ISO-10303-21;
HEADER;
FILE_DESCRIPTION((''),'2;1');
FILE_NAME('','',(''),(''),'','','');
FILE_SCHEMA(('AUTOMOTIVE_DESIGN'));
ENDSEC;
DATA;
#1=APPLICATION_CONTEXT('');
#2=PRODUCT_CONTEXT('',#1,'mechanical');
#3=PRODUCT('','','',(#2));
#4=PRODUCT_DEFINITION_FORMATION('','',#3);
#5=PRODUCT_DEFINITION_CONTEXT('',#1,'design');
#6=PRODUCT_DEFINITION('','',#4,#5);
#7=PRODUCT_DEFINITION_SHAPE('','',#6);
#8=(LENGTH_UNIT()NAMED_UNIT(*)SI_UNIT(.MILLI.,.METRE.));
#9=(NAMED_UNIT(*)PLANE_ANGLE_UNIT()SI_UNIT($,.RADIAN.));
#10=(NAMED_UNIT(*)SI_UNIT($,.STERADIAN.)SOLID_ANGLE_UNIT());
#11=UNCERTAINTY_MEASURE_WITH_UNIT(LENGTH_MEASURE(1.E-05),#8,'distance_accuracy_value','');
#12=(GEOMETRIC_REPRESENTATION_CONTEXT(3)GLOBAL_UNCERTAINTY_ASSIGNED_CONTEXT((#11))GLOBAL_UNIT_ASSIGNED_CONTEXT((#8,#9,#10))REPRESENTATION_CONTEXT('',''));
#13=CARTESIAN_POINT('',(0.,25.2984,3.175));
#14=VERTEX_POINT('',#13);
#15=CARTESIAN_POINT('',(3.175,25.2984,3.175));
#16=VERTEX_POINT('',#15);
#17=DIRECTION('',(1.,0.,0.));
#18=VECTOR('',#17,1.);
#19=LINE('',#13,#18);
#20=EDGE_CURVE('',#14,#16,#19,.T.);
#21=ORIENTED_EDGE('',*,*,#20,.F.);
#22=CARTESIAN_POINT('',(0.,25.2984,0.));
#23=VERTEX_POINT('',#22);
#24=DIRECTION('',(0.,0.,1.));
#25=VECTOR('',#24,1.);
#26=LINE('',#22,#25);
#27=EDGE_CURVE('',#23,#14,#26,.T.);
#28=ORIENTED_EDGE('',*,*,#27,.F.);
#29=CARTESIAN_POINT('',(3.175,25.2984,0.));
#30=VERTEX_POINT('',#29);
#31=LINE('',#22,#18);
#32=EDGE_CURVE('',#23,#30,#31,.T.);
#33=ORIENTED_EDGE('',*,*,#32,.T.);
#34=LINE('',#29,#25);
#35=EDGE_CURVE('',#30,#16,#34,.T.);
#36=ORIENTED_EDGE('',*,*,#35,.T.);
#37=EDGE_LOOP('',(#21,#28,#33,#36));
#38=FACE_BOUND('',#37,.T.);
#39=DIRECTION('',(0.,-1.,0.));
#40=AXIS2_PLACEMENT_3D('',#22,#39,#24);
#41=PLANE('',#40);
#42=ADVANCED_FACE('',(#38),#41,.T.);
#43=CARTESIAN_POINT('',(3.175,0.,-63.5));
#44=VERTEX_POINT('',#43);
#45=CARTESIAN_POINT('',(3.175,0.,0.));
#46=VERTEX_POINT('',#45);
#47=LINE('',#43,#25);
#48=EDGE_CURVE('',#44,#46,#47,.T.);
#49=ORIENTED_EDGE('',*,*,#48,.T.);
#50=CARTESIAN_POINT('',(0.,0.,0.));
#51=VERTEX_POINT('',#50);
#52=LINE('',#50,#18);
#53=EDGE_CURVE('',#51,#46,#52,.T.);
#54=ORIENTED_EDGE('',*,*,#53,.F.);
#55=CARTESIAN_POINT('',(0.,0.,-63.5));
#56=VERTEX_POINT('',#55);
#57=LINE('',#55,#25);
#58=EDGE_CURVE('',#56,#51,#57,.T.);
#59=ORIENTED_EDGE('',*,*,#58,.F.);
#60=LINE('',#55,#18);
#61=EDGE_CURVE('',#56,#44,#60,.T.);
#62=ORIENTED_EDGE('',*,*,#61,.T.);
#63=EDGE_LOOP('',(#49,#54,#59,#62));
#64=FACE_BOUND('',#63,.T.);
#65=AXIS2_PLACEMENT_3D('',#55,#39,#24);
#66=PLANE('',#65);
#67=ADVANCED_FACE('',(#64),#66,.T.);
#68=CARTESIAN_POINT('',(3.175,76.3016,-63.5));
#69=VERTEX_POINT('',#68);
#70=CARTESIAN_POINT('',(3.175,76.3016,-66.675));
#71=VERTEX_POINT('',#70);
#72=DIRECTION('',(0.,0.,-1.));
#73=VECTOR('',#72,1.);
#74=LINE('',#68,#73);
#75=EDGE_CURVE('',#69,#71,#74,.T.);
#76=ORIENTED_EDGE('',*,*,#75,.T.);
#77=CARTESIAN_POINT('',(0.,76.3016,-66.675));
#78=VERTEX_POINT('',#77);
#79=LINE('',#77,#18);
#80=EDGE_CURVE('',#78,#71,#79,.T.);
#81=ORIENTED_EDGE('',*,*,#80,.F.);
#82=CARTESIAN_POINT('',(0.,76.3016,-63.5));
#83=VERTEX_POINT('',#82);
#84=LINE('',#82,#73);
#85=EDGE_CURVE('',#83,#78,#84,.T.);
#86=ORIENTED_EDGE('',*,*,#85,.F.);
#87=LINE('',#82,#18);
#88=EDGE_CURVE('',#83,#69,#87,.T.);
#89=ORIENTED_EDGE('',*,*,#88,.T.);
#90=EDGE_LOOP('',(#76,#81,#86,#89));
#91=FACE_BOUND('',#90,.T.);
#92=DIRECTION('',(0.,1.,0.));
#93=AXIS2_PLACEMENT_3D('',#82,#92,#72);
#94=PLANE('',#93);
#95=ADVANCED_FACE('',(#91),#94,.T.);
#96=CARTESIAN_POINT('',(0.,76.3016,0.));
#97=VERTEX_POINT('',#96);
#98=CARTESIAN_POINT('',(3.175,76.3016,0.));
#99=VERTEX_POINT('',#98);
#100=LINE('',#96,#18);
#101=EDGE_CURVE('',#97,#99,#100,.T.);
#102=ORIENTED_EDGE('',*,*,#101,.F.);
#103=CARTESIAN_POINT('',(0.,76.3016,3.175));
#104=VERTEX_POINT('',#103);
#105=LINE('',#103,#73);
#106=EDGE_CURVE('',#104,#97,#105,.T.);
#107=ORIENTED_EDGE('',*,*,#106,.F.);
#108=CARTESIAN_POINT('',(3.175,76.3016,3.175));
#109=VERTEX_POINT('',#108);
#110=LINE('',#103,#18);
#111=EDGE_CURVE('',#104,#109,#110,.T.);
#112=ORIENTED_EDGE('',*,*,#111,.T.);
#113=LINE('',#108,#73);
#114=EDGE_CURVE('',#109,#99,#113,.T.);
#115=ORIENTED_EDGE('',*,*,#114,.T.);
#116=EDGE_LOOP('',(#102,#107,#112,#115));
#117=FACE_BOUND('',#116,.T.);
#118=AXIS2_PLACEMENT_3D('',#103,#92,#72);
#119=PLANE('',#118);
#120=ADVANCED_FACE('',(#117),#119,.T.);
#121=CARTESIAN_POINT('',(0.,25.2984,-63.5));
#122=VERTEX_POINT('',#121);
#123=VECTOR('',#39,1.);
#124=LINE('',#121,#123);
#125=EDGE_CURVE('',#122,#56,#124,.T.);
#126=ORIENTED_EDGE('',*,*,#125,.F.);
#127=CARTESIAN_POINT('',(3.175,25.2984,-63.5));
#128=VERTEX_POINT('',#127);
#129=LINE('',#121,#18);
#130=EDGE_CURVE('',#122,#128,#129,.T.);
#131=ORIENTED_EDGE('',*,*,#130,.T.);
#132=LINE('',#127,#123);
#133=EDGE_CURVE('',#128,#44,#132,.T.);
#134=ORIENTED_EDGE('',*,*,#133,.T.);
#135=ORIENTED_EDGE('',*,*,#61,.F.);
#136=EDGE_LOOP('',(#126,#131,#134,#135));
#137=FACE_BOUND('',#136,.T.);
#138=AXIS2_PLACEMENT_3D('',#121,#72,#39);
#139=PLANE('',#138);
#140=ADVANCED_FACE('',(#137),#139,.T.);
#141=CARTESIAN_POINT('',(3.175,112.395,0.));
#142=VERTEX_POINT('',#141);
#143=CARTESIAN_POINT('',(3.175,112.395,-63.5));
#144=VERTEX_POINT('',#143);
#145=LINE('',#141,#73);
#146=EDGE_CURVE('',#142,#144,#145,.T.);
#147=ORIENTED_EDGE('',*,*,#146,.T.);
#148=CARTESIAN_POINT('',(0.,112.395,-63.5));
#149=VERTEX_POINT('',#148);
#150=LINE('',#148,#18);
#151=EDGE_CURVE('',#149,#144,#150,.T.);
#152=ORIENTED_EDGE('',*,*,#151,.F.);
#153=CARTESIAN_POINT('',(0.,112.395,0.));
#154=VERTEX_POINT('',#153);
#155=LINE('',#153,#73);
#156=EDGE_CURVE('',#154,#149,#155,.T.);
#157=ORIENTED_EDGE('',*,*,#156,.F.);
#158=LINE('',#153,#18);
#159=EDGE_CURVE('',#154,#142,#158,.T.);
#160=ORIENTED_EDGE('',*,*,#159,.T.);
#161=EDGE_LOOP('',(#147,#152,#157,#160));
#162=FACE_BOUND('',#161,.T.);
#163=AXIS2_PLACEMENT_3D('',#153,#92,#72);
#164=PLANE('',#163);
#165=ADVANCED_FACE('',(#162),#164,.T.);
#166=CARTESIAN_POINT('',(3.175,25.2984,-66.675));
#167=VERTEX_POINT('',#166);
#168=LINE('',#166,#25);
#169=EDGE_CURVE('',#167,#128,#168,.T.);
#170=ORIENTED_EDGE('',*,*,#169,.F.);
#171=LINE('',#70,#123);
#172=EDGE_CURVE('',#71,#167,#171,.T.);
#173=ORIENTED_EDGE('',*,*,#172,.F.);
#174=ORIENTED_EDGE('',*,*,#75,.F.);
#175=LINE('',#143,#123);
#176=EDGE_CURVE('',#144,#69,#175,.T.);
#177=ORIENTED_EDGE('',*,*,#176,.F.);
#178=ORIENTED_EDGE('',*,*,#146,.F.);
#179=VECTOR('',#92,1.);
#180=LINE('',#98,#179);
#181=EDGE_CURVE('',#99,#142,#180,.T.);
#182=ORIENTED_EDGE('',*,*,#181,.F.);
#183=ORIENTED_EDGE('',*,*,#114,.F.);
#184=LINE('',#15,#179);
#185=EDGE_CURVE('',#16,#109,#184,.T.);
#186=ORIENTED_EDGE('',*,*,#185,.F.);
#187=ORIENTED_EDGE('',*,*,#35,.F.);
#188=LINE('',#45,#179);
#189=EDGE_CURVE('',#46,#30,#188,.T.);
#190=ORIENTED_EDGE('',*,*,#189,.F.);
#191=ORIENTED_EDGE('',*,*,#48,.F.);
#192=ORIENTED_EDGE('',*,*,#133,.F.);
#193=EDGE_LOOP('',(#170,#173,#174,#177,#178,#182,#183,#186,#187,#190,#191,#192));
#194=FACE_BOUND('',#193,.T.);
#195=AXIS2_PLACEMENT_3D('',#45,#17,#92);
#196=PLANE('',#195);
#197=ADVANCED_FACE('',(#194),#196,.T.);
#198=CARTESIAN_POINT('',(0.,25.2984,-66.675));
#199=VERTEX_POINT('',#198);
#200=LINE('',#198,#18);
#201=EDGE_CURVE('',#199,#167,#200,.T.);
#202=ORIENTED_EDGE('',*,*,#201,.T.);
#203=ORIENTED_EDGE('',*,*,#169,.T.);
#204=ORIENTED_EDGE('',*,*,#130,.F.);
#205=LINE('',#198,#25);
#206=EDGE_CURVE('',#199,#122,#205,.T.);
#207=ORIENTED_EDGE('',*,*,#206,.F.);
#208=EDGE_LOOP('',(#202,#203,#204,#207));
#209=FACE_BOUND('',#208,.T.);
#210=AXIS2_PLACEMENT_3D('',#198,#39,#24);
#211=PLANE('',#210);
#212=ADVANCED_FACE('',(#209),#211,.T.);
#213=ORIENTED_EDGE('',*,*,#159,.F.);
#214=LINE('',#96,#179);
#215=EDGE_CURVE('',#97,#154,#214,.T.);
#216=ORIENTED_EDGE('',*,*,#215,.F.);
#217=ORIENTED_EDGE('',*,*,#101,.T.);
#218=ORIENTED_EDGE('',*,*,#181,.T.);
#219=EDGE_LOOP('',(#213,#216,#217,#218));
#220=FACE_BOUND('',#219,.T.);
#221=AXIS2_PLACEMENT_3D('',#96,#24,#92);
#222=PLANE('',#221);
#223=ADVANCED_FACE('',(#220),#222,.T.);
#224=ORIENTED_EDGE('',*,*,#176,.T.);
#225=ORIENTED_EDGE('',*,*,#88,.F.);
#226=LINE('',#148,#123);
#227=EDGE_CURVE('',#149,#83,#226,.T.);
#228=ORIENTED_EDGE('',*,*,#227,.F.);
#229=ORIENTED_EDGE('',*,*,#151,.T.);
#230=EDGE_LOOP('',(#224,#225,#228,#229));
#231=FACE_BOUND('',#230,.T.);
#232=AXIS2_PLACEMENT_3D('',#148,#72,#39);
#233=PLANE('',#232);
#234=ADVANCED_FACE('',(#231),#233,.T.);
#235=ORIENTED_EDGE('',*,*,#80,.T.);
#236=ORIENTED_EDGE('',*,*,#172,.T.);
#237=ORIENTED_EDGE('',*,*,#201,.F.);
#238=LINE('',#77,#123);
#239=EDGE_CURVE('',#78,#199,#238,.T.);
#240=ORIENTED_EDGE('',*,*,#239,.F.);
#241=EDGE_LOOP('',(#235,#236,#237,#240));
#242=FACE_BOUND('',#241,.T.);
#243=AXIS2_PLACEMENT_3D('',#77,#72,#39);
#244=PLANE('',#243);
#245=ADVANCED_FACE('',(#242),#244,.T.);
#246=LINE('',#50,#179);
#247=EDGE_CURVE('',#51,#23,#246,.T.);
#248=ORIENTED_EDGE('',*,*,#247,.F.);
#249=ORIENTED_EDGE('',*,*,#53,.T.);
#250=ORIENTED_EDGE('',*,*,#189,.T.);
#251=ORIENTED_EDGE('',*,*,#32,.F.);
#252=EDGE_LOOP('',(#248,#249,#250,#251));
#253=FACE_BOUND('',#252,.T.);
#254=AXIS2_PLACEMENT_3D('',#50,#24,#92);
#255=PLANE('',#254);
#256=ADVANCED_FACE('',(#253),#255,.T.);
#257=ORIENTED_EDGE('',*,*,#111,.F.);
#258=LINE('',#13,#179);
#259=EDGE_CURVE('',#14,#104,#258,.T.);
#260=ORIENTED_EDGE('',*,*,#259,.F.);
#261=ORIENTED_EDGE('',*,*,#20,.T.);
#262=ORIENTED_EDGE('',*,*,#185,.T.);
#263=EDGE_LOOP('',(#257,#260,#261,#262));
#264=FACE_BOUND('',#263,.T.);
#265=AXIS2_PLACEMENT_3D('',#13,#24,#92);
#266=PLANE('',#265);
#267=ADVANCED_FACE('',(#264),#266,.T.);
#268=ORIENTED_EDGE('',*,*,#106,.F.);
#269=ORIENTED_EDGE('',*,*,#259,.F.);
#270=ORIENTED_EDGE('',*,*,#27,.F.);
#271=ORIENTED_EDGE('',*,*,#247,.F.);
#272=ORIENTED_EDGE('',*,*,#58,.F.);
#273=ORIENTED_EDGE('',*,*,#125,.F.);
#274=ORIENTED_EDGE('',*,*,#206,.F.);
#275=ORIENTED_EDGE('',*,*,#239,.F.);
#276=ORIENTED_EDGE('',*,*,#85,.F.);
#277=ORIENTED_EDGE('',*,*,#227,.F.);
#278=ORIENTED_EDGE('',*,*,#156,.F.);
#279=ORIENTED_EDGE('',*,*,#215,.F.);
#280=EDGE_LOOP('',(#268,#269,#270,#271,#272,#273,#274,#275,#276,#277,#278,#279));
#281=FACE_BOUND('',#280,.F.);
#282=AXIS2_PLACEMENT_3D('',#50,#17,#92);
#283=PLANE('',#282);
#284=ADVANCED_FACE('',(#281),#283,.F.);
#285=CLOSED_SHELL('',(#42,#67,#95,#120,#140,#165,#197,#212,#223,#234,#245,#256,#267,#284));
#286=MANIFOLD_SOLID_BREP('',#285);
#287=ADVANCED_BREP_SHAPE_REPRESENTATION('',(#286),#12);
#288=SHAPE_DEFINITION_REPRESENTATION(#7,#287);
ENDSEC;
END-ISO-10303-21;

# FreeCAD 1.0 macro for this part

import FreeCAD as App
import Part
import Sketcher
Q = App.Units.Quantity

doc = App.newDocument("Part")
body = doc.addObject("PartDesign::Body", "Body")

sketch1 = body.newObject("Sketcher::SketchObject", "Sketch")
sketch1.AttachmentSupport = (doc.getObject("YZ_Plane"), [""])
sketch1.MapMode = "FlatFace"
sketch1.addGeometry([
    Part.LineSegment(App.Vector(25.3, 0, 0), App.Vector(0, 0, 0)),
    Part.LineSegment(App.Vector(0, 0, 0), App.Vector(0, -63.5, 0)),
    Part.LineSegment(App.Vector(0, -63.5, 0), App.Vector(25.3, -63.5, 0)),
    Part.LineSegment(App.Vector(25.3, -63.5, 0), App.Vector(25.3, -66.7, 0)),
    Part.LineSegment(App.Vector(25.3, -66.7, 0), App.Vector(76.3, -66.7, 0)),
    Part.LineSegment(App.Vector(76.3, -66.7, 0), App.Vector(76.3, -63.5, 0)),
    Part.LineSegment(App.Vector(76.3, -63.5, 0), App.Vector(112.4, -63.5, 0)),
    Part.LineSegment(App.Vector(112.4, -63.5, 0), App.Vector(112.4, 0, 0)),
    Part.LineSegment(App.Vector(112.4, 0, 0), App.Vector(76.3, 0, 0)),
    Part.LineSegment(App.Vector(76.3, 0, 0), App.Vector(76.3, 3.2, 0)),
    Part.LineSegment(App.Vector(76.3, 3.2, 0), App.Vector(25.3, 3.2, 0)),
    Part.LineSegment(App.Vector(25.3, 3.2, 0), App.Vector(25.3, 0, 0)),
], False)
sketch1.addConstraint([
    Sketcher.Constraint("Coincident", 0, 2, 1, 1),
    Sketcher.Constraint("Coincident", 1, 2, 2, 1),
    Sketcher.Constraint("Coincident", 2, 2, 3, 1),
    Sketcher.Constraint("Coincident", 3, 2, 4, 1),
    Sketcher.Constraint("Coincident", 4, 2, 5, 1),
    Sketcher.Constraint("Coincident", 5, 2, 6, 1),
    Sketcher.Constraint("Coincident", 6, 2, 7, 1),
    Sketcher.Constraint("Coincident", 7, 2, 8, 1),
    Sketcher.Constraint("Coincident", 8, 2, 9, 1),
    Sketcher.Constraint("Coincident", 9, 2, 10, 1),
    Sketcher.Constraint("Coincident", 10, 2, 11, 1),
    Sketcher.Constraint("Coincident", 11, 2, 0, 1),
    Sketcher.Constraint("Horizontal", 0),
    Sketcher.Constraint("Vertical", 1),
    Sketcher.Constraint("Horizontal", 2),
    Sketcher.Constraint("Vertical", 3),
    Sketcher.Constraint("Horizontal", 4),
    Sketcher.Constraint("Vertical", 5),
    Sketcher.Constraint("Horizontal", 6),
    Sketcher.Constraint("Vertical", 7),
    Sketcher.Constraint("Horizontal", 8),
    Sketcher.Constraint("Vertical", 9),
    Sketcher.Constraint("Horizontal", 10),
    Sketcher.Constraint("Vertical", 11),
    Sketcher.Constraint("Coincident", 0, 2, -1, 1),
    Sketcher.Constraint("PointOnObject", 7, 2, -1),
    Sketcher.Constraint("Horizontal", 2, 2, 5, 2),
    Sketcher.Constraint("Vertical", 5, 2, 8, 2),
    Sketcher.Constraint("Vertical", 3, 2, 10, 2),
    Sketcher.Constraint("Equal", 5, 9),
    Sketcher.Constraint("DistanceY", 1, 2, 1, 1, Q("2.5 in")),
    Sketcher.Constraint("DistanceX", 0, 2, 0, 1, Q("0.996 in")),
    Sketcher.Constraint("DistanceX", 4, 1, 4, 2, Q("2.008 in")),
    Sketcher.Constraint("DistanceY", 3, 2, 3, 1, Q("0.125 in")),
    Sketcher.Constraint("DistanceX", -1, 1, 6, 2, Q("4.425 in")),
])
pad1 = body.newObject("PartDesign::Pad", "Pad")
pad1.Profile = sketch1
pad1.Length = Q("0.125 in")

doc.recompute()
